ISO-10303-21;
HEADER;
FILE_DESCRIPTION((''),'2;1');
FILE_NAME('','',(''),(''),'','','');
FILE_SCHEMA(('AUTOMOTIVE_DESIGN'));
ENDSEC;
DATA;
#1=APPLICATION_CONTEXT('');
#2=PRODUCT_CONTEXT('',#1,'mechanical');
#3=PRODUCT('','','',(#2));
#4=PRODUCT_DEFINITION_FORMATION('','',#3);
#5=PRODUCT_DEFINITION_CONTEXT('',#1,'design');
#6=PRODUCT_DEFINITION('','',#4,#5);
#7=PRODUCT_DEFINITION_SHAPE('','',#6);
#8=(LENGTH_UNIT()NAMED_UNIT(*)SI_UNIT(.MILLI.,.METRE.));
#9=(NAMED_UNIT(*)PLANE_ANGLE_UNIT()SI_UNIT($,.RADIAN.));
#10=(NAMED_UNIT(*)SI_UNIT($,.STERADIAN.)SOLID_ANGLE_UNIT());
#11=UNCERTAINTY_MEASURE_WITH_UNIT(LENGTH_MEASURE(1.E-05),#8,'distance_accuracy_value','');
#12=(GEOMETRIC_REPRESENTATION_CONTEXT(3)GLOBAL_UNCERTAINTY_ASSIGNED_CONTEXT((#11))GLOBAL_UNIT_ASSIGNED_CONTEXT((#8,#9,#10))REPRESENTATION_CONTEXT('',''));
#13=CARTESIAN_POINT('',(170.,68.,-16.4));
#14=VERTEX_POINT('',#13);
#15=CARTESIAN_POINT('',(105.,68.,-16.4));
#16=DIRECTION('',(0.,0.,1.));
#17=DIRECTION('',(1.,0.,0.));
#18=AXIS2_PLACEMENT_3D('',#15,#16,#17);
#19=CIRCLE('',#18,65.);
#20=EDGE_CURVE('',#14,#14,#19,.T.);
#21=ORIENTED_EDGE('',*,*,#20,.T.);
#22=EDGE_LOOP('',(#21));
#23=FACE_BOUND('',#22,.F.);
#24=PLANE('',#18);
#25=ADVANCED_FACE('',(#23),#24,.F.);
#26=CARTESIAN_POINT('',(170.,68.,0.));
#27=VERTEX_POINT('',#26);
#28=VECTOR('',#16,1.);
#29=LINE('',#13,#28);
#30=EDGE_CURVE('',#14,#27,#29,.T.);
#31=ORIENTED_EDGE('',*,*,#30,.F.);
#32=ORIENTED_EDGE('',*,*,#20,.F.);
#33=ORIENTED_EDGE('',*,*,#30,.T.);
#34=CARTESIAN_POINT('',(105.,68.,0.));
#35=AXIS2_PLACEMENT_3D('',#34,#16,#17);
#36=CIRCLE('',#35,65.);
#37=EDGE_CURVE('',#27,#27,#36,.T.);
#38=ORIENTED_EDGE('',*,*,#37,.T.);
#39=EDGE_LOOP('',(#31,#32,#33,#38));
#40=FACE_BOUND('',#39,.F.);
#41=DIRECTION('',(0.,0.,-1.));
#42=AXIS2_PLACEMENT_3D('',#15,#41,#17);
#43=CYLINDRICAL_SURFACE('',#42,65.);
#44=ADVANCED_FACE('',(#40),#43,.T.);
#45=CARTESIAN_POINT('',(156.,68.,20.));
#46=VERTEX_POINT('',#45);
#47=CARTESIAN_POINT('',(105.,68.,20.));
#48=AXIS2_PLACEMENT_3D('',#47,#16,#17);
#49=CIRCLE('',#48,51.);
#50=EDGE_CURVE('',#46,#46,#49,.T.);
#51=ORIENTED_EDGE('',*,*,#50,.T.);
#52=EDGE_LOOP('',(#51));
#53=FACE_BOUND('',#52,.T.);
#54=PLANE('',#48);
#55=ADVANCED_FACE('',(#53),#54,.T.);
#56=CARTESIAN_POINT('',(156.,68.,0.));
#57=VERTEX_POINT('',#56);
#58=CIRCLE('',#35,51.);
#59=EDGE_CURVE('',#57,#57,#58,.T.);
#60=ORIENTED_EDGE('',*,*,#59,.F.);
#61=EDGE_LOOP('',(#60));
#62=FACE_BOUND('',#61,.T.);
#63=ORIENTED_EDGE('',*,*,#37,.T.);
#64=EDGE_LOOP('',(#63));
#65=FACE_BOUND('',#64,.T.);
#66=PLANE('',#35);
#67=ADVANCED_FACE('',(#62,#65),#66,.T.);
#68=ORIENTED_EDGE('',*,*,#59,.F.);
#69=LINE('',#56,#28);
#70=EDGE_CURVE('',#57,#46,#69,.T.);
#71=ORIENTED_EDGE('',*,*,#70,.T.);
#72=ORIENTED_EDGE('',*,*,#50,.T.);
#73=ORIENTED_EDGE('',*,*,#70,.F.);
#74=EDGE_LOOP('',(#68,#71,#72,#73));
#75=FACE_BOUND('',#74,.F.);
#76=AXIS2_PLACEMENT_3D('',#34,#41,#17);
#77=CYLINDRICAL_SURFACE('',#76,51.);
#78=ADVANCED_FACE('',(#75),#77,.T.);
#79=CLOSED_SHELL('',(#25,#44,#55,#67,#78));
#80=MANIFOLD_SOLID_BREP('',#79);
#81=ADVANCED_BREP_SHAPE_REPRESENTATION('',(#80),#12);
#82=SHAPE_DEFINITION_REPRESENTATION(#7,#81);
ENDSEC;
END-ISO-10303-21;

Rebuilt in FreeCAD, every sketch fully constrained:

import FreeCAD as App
import Part
import Sketcher
Q = App.Units.Quantity

doc = App.newDocument("Part")
body = doc.addObject("PartDesign::Body", "Body")

# Sketch on XY plane
sketch1 = doc.addObject("Sketcher::SketchObject", "Sketch")
body.addObject(sketch1)
sketch1.AttachmentSupport = (doc.XY_Plane, [""])
sketch1.MapMode = "FlatFace"
sketch1.addGeometry(Part.Circle(App.Vector(105, 68, 0), App.Vector(0, 0, 1), 51), False)
sketch1.addConstraint([
    Sketcher.Constraint("Diameter", 0, Q("102 mm")),
    Sketcher.Constraint("DistanceX", -1, 1, 0, 3, Q("105 mm")),
    Sketcher.Constraint("DistanceY", -1, 1, 0, 3, Q("68 mm")),
])
pad1 = doc.addObject("PartDesign::Pad", "Pad")
body.addObject(pad1)
pad1.Profile = sketch1
pad1.Length = 20
body2 = doc.addObject("PartDesign::Body", "Body001")

# Sketch on XY plane
sketch2 = doc.addObject("Sketcher::SketchObject", "Sketch001")
body2.addObject(sketch2)
sketch2.AttachmentSupport = (doc.getObject("XY_Plane001"), [""])
sketch2.MapMode = "FlatFace"
sketch2.AttachmentOffset = App.Placement(App.Vector(0, 0, -16.4), App.Rotation())
sketch2.addGeometry(Part.Circle(App.Vector(105, 68, 0), App.Vector(0, 0, 1), 65), False)
sketch2.addConstraint([
    Sketcher.Constraint("Diameter", 0, Q("130 mm")),
    Sketcher.Constraint("DistanceX", -1, 1, 0, 3, Q("105 mm")),
    Sketcher.Constraint("DistanceY", -1, 1, 0, 3, Q("68 mm")),
])
pad2 = doc.addObject("PartDesign::Pad", "Pad001")
body2.addObject(pad2)
pad2.Profile = sketch2
pad2.Length = 16.4
doc.recompute()

boolean = doc.addObject("PartDesign::Boolean", "Boolean")
body2.addObject(boolean)
boolean.Type = "Fuse"
boolean.addObjects([body])

doc.recompute()
